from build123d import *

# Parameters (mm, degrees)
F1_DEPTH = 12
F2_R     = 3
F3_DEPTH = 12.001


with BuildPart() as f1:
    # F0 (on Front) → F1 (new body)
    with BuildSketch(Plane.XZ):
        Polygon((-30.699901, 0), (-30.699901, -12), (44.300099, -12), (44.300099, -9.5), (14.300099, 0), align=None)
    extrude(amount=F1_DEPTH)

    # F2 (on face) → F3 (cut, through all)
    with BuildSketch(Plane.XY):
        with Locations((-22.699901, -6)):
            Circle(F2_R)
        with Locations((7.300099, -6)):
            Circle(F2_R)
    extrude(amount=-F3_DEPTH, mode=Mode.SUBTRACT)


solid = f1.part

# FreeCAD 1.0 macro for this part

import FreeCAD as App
import Part
import Sketcher

doc = App.newDocument("Part")
params = doc.addObject("Spreadsheet::Sheet", "Params")
for row, (alias, value) in enumerate([
    ("sketch1_width", "75 mm"),
    ("sketch1_width2", "45 mm"),
    ("sketch1_height", "12 mm"),
    ("sketch1_height2", "2.5 mm"),
    ("pad1_length", "12 mm"),
    ("sketch2_diameter", "6 mm"),
], start=1):
    params.set(f"A{row}", alias)
    params.set(f"B{row}", "=" + value)
    params.setAlias(f"B{row}", alias)

body = doc.addObject("PartDesign::Body", "Body")

# Sketch on XZ plane
sketch1 = body.newObject("Sketcher::SketchObject", "Sketch")
sketch1.AttachmentSupport = (doc.getObject("XZ_Plane"), [""])
sketch1.MapMode = "FlatFace"
sketch1.addGeometry(Part.LineSegment(App.Vector(-30.7, 0, 0), App.Vector(-30.7, -12, 0)), False)
sketch1.addGeometry(Part.LineSegment(App.Vector(-30.7, -12, 0), App.Vector(44.3, -12, 0)), False)
sketch1.addGeometry(Part.LineSegment(App.Vector(44.3, -12, 0), App.Vector(44.3, -9.5, 0)), False)
sketch1.addGeometry(Part.LineSegment(App.Vector(44.3, -9.5, 0), App.Vector(14.3, 0, 0)), False)
sketch1.addGeometry(Part.LineSegment(App.Vector(14.3, 0, 0), App.Vector(-30.7, 0, 0)), False)
sketch1.addConstraint(Sketcher.Constraint("Coincident", 0, 2, 1, 1))
sketch1.addConstraint(Sketcher.Constraint("Coincident", 1, 2, 2, 1))
sketch1.addConstraint(Sketcher.Constraint("Coincident", 2, 2, 3, 1))
sketch1.addConstraint(Sketcher.Constraint("Coincident", 3, 2, 4, 1))
sketch1.addConstraint(Sketcher.Constraint("Coincident", 4, 2, 0, 1))
sketch1.addConstraint(Sketcher.Constraint("Vertical", 0))
sketch1.addConstraint(Sketcher.Constraint("Horizontal", 1))
sketch1.addConstraint(Sketcher.Constraint("Vertical", 2))
sketch1.addConstraint(Sketcher.Constraint("Horizontal", 4))
sketch1.addConstraint(Sketcher.Constraint("PointOnObject", 3, 2, -1))
sketch1.addConstraint(Sketcher.Constraint("DistanceX", 1, 1, 1, 2, 75.0))
sketch1.addConstraint(Sketcher.Constraint("DistanceX", 4, 2, 4, 1, 45.0))
sketch1.addConstraint(Sketcher.Constraint("DistanceY", 0, 2, 0, 1, 12.0))
sketch1.addConstraint(Sketcher.Constraint("DistanceY", 2, 1, 2, 2, 2.5))
sketch1.addConstraint(Sketcher.Constraint("DistanceX", 0, 2, -1, 1, 30.699901))
sketch1.setExpression("Constraints[10]", "Params.sketch1_width")
sketch1.setExpression("Constraints[11]", "Params.sketch1_width2")
sketch1.setExpression("Constraints[12]", "Params.sketch1_height")
sketch1.setExpression("Constraints[13]", "Params.sketch1_height2")
pad1 = body.newObject("PartDesign::Pad", "Pad")
pad1.Profile = sketch1
pad1.setExpression("Length", "Params.pad1_length")

# Sketch on XY plane
sketch2 = body.newObject("Sketcher::SketchObject", "Sketch001")
sketch2.AttachmentSupport = (doc.getObject("XY_Plane"), [""])
sketch2.MapMode = "FlatFace"
sketch2.addGeometry(Part.Circle(App.Vector(-22.7, -6, 0), App.Vector(0, 0, 1), 3), False)
sketch2.addGeometry(Part.Circle(App.Vector(7.3, -6, 0), App.Vector(0, 0, 1), 3), False)
sketch2.addConstraint(Sketcher.Constraint("Equal", 0, 1))
sketch2.addConstraint(Sketcher.Constraint("Horizontal", 0, 3, 1, 3))
sketch2.addConstraint(Sketcher.Constraint("Diameter", 0, 6.0))
sketch2.addConstraint(Sketcher.Constraint("DistanceY", 0, 3, -1, 1, 6.0))
sketch2.addConstraint(Sketcher.Constraint("DistanceX", 0, 3, 1, 3, 30.0))
sketch2.addConstraint(Sketcher.Constraint("DistanceX", 0, 3, -1, 1, 22.699901))
sketch2.setExpression("Constraints[2]", "Params.sketch2_diameter")
pocket1 = body.newObject("PartDesign::Pocket", "Pocket")
pocket1.Profile = sketch2
pocket1.Type = "ThroughAll"

doc.recompute()
